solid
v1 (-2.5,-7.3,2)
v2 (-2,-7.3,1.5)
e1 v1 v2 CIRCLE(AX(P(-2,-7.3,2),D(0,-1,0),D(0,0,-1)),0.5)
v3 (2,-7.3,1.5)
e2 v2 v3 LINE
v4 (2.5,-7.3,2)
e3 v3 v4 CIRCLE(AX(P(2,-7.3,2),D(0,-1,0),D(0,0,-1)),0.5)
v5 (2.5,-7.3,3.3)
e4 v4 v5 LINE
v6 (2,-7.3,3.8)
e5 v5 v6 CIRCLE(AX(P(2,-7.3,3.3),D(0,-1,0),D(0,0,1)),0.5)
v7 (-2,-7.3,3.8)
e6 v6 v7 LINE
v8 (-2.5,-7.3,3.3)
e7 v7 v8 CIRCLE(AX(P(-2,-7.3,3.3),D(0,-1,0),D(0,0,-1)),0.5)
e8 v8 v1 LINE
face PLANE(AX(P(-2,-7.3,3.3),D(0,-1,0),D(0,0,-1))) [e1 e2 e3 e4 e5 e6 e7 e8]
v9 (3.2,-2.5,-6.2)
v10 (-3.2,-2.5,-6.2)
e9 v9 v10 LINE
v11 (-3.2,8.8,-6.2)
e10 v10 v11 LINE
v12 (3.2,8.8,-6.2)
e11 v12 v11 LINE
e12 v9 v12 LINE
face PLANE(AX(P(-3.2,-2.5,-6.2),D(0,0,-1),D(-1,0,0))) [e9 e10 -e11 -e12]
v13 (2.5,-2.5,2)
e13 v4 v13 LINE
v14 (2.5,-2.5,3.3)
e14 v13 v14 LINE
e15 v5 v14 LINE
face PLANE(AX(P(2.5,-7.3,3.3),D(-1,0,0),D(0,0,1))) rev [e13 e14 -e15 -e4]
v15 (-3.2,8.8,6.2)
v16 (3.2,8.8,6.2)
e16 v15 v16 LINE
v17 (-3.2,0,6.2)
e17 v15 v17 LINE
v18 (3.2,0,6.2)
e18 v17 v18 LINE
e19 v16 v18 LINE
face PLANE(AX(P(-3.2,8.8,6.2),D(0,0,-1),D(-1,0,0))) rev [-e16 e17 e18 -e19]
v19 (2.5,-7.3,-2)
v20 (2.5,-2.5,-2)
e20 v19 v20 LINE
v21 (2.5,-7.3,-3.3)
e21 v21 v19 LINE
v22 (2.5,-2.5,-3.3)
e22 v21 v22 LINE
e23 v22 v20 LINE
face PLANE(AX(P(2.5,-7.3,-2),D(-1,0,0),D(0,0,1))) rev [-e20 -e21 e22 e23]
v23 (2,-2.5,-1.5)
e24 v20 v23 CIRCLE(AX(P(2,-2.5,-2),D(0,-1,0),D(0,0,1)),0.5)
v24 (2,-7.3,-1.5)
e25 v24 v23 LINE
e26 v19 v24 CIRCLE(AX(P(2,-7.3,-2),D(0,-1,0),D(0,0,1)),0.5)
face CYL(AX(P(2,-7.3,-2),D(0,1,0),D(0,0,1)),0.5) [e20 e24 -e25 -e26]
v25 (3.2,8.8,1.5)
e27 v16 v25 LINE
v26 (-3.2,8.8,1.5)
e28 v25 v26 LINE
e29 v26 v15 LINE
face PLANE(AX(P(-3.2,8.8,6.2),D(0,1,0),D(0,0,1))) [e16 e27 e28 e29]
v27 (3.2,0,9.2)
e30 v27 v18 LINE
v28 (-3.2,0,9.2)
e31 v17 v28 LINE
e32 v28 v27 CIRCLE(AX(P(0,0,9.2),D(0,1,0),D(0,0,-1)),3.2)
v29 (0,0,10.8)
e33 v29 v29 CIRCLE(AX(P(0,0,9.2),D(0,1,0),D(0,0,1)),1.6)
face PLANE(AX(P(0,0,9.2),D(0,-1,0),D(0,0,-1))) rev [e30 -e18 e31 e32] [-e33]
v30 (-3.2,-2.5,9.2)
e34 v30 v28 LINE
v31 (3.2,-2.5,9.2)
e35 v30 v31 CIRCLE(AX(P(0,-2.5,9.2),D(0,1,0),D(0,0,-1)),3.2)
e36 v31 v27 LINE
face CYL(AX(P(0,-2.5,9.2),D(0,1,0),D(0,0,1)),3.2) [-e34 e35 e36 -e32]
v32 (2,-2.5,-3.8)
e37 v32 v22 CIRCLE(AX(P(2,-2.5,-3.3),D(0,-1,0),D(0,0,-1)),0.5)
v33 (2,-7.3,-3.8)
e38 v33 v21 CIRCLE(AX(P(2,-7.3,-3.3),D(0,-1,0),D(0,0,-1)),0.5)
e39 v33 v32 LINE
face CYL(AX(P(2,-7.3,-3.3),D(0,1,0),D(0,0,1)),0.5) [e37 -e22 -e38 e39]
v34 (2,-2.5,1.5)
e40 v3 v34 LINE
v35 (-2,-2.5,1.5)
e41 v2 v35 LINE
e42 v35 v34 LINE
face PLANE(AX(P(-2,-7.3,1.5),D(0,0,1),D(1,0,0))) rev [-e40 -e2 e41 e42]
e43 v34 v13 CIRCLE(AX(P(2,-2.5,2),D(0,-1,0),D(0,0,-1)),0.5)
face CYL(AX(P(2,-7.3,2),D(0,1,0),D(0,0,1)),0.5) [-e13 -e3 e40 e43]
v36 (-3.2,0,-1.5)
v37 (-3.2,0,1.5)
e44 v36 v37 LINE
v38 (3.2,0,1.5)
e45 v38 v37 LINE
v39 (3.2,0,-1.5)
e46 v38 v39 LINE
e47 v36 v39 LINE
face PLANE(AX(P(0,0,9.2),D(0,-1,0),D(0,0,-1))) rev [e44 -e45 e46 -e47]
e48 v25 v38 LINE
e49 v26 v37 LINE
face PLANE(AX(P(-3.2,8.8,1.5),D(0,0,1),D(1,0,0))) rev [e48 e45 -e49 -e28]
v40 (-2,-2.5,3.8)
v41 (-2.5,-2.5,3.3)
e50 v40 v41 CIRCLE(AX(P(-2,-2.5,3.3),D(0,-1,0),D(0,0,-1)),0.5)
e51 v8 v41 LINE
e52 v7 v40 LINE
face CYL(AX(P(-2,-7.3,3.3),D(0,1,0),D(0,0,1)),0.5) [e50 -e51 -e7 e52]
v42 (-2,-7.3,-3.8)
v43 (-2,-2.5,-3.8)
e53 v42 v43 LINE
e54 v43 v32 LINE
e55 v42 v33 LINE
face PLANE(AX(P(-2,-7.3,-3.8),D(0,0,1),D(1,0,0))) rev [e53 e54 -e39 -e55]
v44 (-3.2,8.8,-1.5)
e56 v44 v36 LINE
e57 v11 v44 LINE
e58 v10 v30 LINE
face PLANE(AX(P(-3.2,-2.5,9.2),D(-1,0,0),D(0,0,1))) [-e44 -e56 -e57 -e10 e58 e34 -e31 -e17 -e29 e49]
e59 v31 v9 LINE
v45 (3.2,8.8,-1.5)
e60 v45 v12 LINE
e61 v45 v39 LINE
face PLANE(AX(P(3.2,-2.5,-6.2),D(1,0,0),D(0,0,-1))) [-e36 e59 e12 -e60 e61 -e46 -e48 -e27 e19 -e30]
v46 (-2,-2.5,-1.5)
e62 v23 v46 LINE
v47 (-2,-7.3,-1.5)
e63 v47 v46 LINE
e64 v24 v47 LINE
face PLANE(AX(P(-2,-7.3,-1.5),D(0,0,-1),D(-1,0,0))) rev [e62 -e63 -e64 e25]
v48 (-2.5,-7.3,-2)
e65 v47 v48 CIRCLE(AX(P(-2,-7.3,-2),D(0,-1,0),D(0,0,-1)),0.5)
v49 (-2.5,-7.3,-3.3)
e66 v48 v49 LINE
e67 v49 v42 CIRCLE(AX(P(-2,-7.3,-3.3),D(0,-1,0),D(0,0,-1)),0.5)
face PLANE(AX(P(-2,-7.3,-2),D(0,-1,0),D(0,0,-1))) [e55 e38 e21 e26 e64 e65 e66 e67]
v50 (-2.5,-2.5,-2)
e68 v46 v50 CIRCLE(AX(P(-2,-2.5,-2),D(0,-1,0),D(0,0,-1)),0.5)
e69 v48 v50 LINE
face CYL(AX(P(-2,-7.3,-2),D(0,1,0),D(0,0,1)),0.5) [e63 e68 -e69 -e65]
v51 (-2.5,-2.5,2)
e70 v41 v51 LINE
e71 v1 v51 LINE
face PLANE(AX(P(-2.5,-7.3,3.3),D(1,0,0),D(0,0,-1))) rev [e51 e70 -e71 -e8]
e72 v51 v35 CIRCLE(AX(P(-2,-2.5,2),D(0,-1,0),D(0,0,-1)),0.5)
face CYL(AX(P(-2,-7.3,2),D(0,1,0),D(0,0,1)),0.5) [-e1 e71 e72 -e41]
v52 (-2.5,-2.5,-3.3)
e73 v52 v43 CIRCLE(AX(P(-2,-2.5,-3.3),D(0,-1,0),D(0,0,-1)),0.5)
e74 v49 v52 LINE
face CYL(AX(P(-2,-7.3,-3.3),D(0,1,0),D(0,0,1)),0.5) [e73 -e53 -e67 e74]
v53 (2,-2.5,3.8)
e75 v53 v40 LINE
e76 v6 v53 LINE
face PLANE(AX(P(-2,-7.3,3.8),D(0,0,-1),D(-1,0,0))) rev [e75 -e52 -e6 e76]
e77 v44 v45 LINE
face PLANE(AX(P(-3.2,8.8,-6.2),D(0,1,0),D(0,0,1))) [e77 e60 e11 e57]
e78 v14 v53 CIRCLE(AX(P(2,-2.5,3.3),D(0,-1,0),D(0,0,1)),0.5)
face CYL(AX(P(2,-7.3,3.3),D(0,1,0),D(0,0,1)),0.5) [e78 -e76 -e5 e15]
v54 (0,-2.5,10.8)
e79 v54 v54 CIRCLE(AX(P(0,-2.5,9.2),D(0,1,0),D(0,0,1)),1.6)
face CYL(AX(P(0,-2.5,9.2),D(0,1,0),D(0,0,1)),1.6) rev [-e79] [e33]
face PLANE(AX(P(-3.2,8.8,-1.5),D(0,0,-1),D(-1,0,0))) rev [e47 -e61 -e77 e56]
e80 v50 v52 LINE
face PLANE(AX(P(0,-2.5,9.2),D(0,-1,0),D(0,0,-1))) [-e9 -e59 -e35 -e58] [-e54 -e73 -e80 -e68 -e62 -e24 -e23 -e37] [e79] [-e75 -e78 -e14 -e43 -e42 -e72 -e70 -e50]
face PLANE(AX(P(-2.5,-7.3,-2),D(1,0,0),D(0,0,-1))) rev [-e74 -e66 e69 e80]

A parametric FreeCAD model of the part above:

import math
import FreeCAD as App
import Part
import Sketcher
from FreeCAD import Vector
Q = App.Units.Quantity


def add_polygon(sketch, points):
    """Adds a closed chain of lines whose ends are joined by coincident constraints."""
    first, n = sketch.GeometryCount, len(points)
    for a, b in zip(points, points[1:] + points[:1]):
        sketch.addGeometry(Part.LineSegment(App.Vector(*a, 0), App.Vector(*b, 0)), False)
    for i in range(n):
        sketch.addConstraint(Sketcher.Constraint("Coincident", first + i, 2, first + (i + 1) % n, 1))

doc = App.newDocument("Part")
params = doc.addObject("Spreadsheet::Sheet", "Params")
for row, (alias, value) in enumerate([
    ("sketch1_diameter", "3.2 mm"),
    ("sketch1_radius", "3.2 mm"),
    ("sketch1_height", "15.4 mm"),
    ("pad1_length", "2.5 mm"),
    ("sketch2_width", "6.4 mm"),
    ("sketch2_height", "4.7 mm"),
    ("pad2_length", "8.8 mm"),
    ("sketch3_radius", "0.5 mm"),
    ("sketch3_width", "4 mm"),
    ("sketch3_height", "1.3 mm"),
    ("pad3_length", "4.8 mm"),
], start=1):
    params.set(f"A{row}", alias)
    params.set(f"B{row}", "=" + value)
    params.setAlias(f"B{row}", alias)

body = doc.addObject("PartDesign::Body", "Body")

# Sketch on XZ plane
sketch1 = body.newObject("Sketcher::SketchObject", "Sketch")
sketch1.AttachmentSupport = (doc.getObject("XZ_Plane"), [""])
sketch1.MapMode = "FlatFace"
sketch1.addGeometry([
    Part.LineSegment(Vector(3.2, -6.2, 0), Vector(-3.2, -6.2, 0)),  # 0
    Part.LineSegment(Vector(-3.2, -6.2, 0), Vector(-3.2, 9.2, 0)),  # 1
    Part.ArcOfCircle(Part.Circle(Vector(0, 9.2, 0), Vector(0, 0, 1), 3.2), math.radians(0), math.radians(180)),  # 2
    Part.LineSegment(Vector(3.2, 9.2, 0), Vector(3.2, -6.2, 0)),  # 3
    Part.Circle(Vector(0, 9.2, 0), Vector(0, 0, 1), 1.6),  # 4
], False)
sketch1.addConstraint([
    Sketcher.Constraint("Coincident", 0, 2, 1, 1),
    Sketcher.Constraint("Tangent", 1, 2, 2, 2),
    Sketcher.Constraint("Tangent", 2, 1, 3, 1),
    Sketcher.Constraint("Coincident", 3, 2, 0, 1),
    Sketcher.Constraint("Horizontal", 0),
    Sketcher.Constraint("Vertical", 1),
    Sketcher.Constraint("Vertical", 3),
    Sketcher.Constraint("Coincident", 4, 3, 2, 3),
    Sketcher.Constraint("PointOnObject", 2, 3, -2),
    Sketcher.Constraint("Diameter", 4, Q("3.2 mm")),
    Sketcher.Constraint("Radius", 2, Q("3.2 mm")),
    Sketcher.Constraint("DistanceY", 1, 1, 1, 2, Q("15.4 mm")),
    Sketcher.Constraint("DistanceY", -1, 1, 2, 3, Q("9.2 mm")),
])
sketch1.setExpression("Constraints[9]", "Params.sketch1_diameter")
sketch1.setExpression("Constraints[10]", "Params.sketch1_radius")
sketch1.setExpression("Constraints[11]", "Params.sketch1_height")
pad1 = body.newObject("PartDesign::Pad", "Pad")
pad1.Profile = sketch1
pad1.setExpression("Length", "Params.pad1_length")

# Sketch on XZ plane
sketch2 = body.newObject("Sketcher::SketchObject", "Sketch001")
sketch2.AttachmentSupport = (doc.getObject("XZ_Plane"), [""])
sketch2.MapMode = "FlatFace"
add_polygon(sketch2, [(3.2, -1.5), (3.2, -6.2), (-3.2, -6.2), (-3.2, -1.5)])  # lines 0-3
add_polygon(sketch2, [(3.2, 6.2), (3.2, 1.5), (-3.2, 1.5), (-3.2, 6.2)])  # lines 4-7
sketch2.addConstraint([
    Sketcher.Constraint("Vertical", 0),
    Sketcher.Constraint("Horizontal", 1),
    Sketcher.Constraint("Vertical", 2),
    Sketcher.Constraint("Horizontal", 3),
    Sketcher.Constraint("Vertical", 4),
    Sketcher.Constraint("Horizontal", 5),
    Sketcher.Constraint("Vertical", 6),
    Sketcher.Constraint("Horizontal", 7),
    Sketcher.Constraint("Symmetric", 2, 2, 4, 2, -1, 1),
    Sketcher.Constraint("Symmetric", 0, 2, 6, 2, -1, 1),
    Sketcher.Constraint("Vertical", 3, 2, 4, 2),
    Sketcher.Constraint("DistanceX", 1, 2, 1, 1, Q("6.4 mm")),
    Sketcher.Constraint("DistanceY", 0, 2, 0, 1, Q("4.7 mm")),
    Sketcher.Constraint("DistanceY", 3, 2, 4, 2, Q("3 mm")),
])
sketch2.setExpression("Constraints[19]", "Params.sketch2_width")
sketch2.setExpression("Constraints[20]", "Params.sketch2_height")
pad2 = body.newObject("PartDesign::Pad", "Pad001")
pad2.Profile = sketch2
pad2.setExpression("Length", "Params.pad2_length")
pad2.Reversed = True

# Sketch on XZ plane
sketch3 = body.newObject("Sketcher::SketchObject", "Sketch002")
sketch3.AttachmentSupport = (doc.getObject("XZ_Plane"), [""])
sketch3.MapMode = "FlatFace"
sketch3.AttachmentOffset = App.Placement(Vector(0, 0, 2.5), App.Rotation())
sketch3.addGeometry([
    Part.LineSegment(Vector(2, 3.8, 0), Vector(-2, 3.8, 0)),  # 0
    Part.ArcOfCircle(Part.Circle(Vector(-2, 3.3, 0), Vector(0, 0, 1), 0.5), math.radians(90), math.radians(180)),  # 1
    Part.LineSegment(Vector(-2.5, 3.3, 0), Vector(-2.5, 2, 0)),  # 2
    Part.ArcOfCircle(Part.Circle(Vector(-2, 2, 0), Vector(0, 0, 1), 0.5), math.radians(180), math.radians(270)),  # 3
    Part.LineSegment(Vector(-2, 1.5, 0), Vector(2, 1.5, 0)),  # 4
    Part.ArcOfCircle(Part.Circle(Vector(2, 2, 0), Vector(0, 0, 1), 0.5), math.radians(-90), math.radians(0)),  # 5
    Part.LineSegment(Vector(2.5, 2, 0), Vector(2.5, 3.3, 0)),  # 6
    Part.ArcOfCircle(Part.Circle(Vector(2, 3.3, 0), Vector(0, 0, 1), 0.5), math.radians(0), math.radians(90)),  # 7
    Part.LineSegment(Vector(2, -1.5, 0), Vector(-2, -1.5, 0)),  # 8
    Part.ArcOfCircle(Part.Circle(Vector(-2, -2, 0), Vector(0, 0, 1), 0.5), math.radians(90), math.radians(180)),  # 9
    Part.LineSegment(Vector(-2.5, -2, 0), Vector(-2.5, -3.3, 0)),  # 10
    Part.ArcOfCircle(Part.Circle(Vector(-2, -3.3, 0), Vector(0, 0, 1), 0.5), math.radians(180), math.radians(270)),  # 11
    Part.LineSegment(Vector(-2, -3.8, 0), Vector(2, -3.8, 0)),  # 12
    Part.ArcOfCircle(Part.Circle(Vector(2, -3.3, 0), Vector(0, 0, 1), 0.5), math.radians(-90), math.radians(0)),  # 13
    Part.LineSegment(Vector(2.5, -3.3, 0), Vector(2.5, -2, 0)),  # 14
    Part.ArcOfCircle(Part.Circle(Vector(2, -2, 0), Vector(0, 0, 1), 0.5), math.radians(0), math.radians(90)),  # 15
], False)
sketch3.addConstraint([
    Sketcher.Constraint("Tangent", 0, 2, 1, 1),
    Sketcher.Constraint("Tangent", 1, 2, 2, 1),
    Sketcher.Constraint("Tangent", 2, 2, 3, 1),
    Sketcher.Constraint("Tangent", 3, 2, 4, 1),
    Sketcher.Constraint("Tangent", 4, 2, 5, 1),
    Sketcher.Constraint("Tangent", 5, 2, 6, 1),
    Sketcher.Constraint("Tangent", 6, 2, 7, 1),
    Sketcher.Constraint("Tangent", 7, 2, 0, 1),
    Sketcher.Constraint("Tangent", 8, 2, 9, 1),
    Sketcher.Constraint("Tangent", 9, 2, 10, 1),
    Sketcher.Constraint("Tangent", 10, 2, 11, 1),
    Sketcher.Constraint("Tangent", 11, 2, 12, 1),
    Sketcher.Constraint("Tangent", 12, 2, 13, 1),
    Sketcher.Constraint("Tangent", 13, 2, 14, 1),
    Sketcher.Constraint("Tangent", 14, 2, 15, 1),
    Sketcher.Constraint("Tangent", 15, 2, 8, 1),
    Sketcher.Constraint("Horizontal", 0),
    Sketcher.Constraint("Vertical", 2),
    Sketcher.Constraint("Horizontal", 4),
    Sketcher.Constraint("Vertical", 6),
    Sketcher.Constraint("Horizontal", 8),
    Sketcher.Constraint("Vertical", 10),
    Sketcher.Constraint("Horizontal", 12),
    Sketcher.Constraint("Vertical", 14),
    Sketcher.Constraint("Equal", 1, 3),
    Sketcher.Constraint("Equal", 3, 5),
    Sketcher.Constraint("Equal", 5, 7),
    Sketcher.Constraint("Equal", 7, 9),
    Sketcher.Constraint("Equal", 9, 11),
    Sketcher.Constraint("Equal", 11, 13),
    Sketcher.Constraint("Equal", 13, 15),
    Sketcher.Constraint("Symmetric", 5, 3, 9, 3, -1, 1),
    Sketcher.Constraint("Symmetric", 1, 3, 13, 3, -1, 1),
    Sketcher.Constraint("Vertical", 3, 3, 9, 3),
    Sketcher.Constraint("Radius", 1, Q("0.5 mm")),
    Sketcher.Constraint("DistanceX", 0, 2, 0, 1, Q("4 mm")),
    Sketcher.Constraint("DistanceY", 2, 2, 2, 1, Q("1.3 mm")),
    Sketcher.Constraint("DistanceY", -1, 1, 3, 3, Q("2 mm")),
])
sketch3.setExpression("Constraints[34]", "Params.sketch3_radius")
sketch3.setExpression("Constraints[35]", "Params.sketch3_width")
sketch3.setExpression("Constraints[36]", "Params.sketch3_height")
pad3 = body.newObject("PartDesign::Pad", "Pad002")
pad3.Profile = sketch3
pad3.setExpression("Length", "Params.pad3_length")

doc.recompute()
